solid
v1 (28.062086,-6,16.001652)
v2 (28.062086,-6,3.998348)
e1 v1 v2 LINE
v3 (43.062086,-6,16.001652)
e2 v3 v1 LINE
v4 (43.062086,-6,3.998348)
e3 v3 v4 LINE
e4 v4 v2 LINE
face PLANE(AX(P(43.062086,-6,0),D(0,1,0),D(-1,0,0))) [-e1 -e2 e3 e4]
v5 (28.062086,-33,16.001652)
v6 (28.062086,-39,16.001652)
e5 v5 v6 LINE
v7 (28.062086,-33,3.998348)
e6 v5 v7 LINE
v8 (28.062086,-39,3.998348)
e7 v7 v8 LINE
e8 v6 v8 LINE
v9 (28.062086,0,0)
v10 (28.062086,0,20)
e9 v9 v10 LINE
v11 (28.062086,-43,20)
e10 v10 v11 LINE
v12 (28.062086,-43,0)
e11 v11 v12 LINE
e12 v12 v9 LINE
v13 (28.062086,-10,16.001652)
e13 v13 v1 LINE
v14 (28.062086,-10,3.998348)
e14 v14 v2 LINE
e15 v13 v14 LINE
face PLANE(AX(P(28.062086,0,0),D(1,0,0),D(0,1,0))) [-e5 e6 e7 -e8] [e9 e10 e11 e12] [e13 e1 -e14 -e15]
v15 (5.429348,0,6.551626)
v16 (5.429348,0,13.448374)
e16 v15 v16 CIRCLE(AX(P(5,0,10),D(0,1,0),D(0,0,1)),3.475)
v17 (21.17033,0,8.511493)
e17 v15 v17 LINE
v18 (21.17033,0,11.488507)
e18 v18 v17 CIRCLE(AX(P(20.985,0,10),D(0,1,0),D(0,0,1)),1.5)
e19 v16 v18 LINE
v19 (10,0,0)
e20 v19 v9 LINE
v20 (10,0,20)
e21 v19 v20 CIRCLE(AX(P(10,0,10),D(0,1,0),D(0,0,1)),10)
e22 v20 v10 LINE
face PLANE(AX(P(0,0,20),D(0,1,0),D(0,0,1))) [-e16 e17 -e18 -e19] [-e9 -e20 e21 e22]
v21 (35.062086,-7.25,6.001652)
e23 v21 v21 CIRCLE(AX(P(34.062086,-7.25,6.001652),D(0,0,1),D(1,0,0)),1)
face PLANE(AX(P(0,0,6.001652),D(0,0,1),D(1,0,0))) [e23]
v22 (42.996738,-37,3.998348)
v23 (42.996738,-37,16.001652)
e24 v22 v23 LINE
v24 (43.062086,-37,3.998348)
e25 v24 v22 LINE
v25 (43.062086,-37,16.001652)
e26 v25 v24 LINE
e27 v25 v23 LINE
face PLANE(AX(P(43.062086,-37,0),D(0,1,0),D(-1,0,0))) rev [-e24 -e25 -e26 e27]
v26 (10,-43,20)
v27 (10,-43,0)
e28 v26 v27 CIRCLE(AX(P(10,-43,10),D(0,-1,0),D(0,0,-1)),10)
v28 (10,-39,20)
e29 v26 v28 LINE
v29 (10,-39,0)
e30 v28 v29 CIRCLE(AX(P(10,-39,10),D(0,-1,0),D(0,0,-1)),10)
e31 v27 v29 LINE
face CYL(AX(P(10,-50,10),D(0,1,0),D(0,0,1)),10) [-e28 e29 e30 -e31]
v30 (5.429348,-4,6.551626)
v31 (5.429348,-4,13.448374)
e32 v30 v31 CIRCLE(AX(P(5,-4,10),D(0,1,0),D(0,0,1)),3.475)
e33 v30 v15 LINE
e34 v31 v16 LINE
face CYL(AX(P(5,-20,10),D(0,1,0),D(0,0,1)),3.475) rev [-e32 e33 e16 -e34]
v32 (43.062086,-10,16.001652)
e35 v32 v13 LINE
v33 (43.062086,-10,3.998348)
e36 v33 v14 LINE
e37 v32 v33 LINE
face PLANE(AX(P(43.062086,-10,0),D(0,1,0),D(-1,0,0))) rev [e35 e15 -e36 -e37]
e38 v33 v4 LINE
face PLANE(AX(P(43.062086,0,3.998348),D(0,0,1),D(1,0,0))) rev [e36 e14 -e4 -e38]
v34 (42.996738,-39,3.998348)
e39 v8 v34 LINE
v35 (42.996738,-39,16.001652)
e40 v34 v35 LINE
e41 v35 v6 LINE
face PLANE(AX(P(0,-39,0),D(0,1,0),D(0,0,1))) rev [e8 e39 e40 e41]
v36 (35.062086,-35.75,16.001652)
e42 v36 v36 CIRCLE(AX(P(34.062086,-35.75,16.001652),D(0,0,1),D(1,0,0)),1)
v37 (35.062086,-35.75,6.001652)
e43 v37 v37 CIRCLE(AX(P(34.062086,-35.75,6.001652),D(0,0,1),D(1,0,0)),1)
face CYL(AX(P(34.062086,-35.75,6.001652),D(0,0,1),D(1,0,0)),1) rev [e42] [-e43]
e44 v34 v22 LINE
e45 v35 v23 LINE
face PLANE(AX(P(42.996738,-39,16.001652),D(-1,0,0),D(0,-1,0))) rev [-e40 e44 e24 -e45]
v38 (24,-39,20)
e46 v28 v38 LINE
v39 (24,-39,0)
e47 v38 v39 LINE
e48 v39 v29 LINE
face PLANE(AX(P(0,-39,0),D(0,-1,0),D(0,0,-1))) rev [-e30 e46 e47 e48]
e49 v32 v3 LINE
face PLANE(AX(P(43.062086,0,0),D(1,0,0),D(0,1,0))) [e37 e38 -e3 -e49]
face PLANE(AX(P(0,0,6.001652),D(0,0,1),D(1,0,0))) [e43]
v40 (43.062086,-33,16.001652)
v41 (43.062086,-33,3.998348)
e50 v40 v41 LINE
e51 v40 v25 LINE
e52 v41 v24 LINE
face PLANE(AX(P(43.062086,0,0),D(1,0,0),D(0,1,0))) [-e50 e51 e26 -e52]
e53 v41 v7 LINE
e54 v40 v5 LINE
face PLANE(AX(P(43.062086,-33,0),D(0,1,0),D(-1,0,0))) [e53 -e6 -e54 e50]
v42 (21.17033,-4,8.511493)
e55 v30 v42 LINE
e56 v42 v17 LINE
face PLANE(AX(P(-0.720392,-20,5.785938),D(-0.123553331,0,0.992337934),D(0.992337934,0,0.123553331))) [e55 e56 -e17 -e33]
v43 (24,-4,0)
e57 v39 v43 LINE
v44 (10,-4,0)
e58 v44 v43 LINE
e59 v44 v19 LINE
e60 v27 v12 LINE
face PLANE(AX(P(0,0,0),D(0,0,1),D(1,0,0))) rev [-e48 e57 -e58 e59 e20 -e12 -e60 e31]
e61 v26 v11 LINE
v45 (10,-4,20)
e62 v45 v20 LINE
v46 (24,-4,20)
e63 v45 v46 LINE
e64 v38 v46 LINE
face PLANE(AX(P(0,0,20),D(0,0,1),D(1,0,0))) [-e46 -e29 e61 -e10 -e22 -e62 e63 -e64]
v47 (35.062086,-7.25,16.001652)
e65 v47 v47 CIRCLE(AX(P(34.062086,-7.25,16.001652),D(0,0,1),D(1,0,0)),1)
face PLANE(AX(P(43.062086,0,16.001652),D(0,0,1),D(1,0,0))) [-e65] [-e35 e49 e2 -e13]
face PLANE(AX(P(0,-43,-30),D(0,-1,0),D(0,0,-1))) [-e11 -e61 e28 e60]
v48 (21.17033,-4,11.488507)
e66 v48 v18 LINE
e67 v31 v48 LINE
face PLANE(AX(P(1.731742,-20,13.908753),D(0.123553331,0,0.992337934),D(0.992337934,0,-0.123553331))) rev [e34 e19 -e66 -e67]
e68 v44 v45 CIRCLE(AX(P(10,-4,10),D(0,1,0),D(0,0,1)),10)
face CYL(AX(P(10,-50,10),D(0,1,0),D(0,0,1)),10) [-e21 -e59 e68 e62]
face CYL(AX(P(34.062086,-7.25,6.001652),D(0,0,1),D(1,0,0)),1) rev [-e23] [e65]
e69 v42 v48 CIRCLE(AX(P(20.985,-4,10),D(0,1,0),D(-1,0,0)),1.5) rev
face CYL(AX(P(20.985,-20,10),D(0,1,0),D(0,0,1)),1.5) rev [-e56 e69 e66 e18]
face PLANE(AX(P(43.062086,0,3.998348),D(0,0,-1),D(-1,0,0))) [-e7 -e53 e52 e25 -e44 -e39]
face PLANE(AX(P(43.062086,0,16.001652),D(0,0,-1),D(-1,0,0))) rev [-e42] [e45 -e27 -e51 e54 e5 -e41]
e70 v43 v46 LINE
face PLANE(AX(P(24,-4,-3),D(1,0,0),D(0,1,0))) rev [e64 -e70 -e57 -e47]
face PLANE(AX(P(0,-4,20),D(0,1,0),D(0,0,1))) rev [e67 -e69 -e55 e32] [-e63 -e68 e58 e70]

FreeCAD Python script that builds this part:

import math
import FreeCAD as App
import Part
import Sketcher
from FreeCAD import Vector


def add_polygon(sketch, points):
    """Adds a closed chain of lines whose ends are joined by coincident constraints."""
    first, n = sketch.GeometryCount, len(points)
    for a, b in zip(points, points[1:] + points[:1]):
        sketch.addGeometry(Part.LineSegment(App.Vector(*a, 0), App.Vector(*b, 0)), False)
    for i in range(n):
        sketch.addConstraint(Sketcher.Constraint("Coincident", first + i, 2, first + (i + 1) % n, 1))

doc = App.newDocument("Part")
params = doc.addObject("Spreadsheet::Sheet", "Params")
for row, (alias, value) in enumerate([
    ("sketch1_width", "20 mm"),
    ("sketch1_height", "46 mm"),
    ("sketch1_height2", "4 mm"),
    ("pad1_length", "20 mm"),
    ("sketch2_radius", "1.5 mm"),
    ("pocket1_length", "20 mm"),
    ("sketch3_width", "46 mm"),
    ("sketch3_height", "20 mm"),
    ("pad2_length", "3 mm"),
    ("sketch4_width", "4 mm"),
    ("sketch4_height", "38 mm"),
    ("pocket2_length", "23 mm"),
    ("sketch5_height", "20 mm"),
    ("pad3_length", "3 mm"),
    ("sketch6_height", "3 mm"),
    ("pocket3_length", "50 mm"),
    ("sketch7_radius", "10 mm"),
    ("pocket4_length", "50 mm"),
    ("sketch8_width", "4 mm"),
    ("pad4_length", "15 mm"),
    ("pad5_length", "2 mm"),
    ("sketch10_diameter", "2 mm"),
    ("pocket5_length", "10 mm"),
], start=1):
    params.set(f"A{row}", alias)
    params.set(f"B{row}", "=" + value)
    params.setAlias(f"B{row}", alias)

body = doc.addObject("PartDesign::Body", "Body")

# Sketch on XY plane
sketch1 = body.newObject("Sketcher::SketchObject", "Sketch")
sketch1.AttachmentSupport = (doc.getObject("XY_Plane"), [""])
sketch1.MapMode = "FlatFace"
add_polygon(sketch1, [(25.1, -46), (25.1, 0), (0, 0), (0, -4), (20, -4), (20, -42), (0, -42), (0, -46)])  # lines 0-7
sketch1.addConstraint([
    Sketcher.Constraint("Vertical", 0),
    Sketcher.Constraint("Horizontal", 1),
    Sketcher.Constraint("Vertical", 2),
    Sketcher.Constraint("Horizontal", 3),
    Sketcher.Constraint("Vertical", 4),
    Sketcher.Constraint("Horizontal", 5),
    Sketcher.Constraint("Vertical", 6),
    Sketcher.Constraint("Horizontal", 7),
    Sketcher.Constraint("Coincident", 1, 2, -1, 1),
    Sketcher.Constraint("PointOnObject", 5, 2, -2),
    Sketcher.Constraint("Equal", 2, 6),
    Sketcher.Constraint("DistanceX", 3, 1, 3, 2, 20.0),
    Sketcher.Constraint("DistanceY", 0, 1, 0, 2, 46.0),
    Sketcher.Constraint("DistanceY", 2, 2, 2, 1, 4.0),
    Sketcher.Constraint("DistanceX", 1, 2, 1, 1, 25.062086),
])
sketch1.setExpression("Constraints[19]", "Params.sketch1_width")
sketch1.setExpression("Constraints[20]", "Params.sketch1_height")
sketch1.setExpression("Constraints[21]", "Params.sketch1_height2")
pad1 = body.newObject("PartDesign::Pad", "Pad")
pad1.Profile = sketch1
pad1.setExpression("Length", "Params.pad1_length")

# Sketch on XZ plane
sketch2 = body.newObject("Sketcher::SketchObject", "Sketch001")
sketch2.AttachmentSupport = (doc.getObject("XZ_Plane"), [""])
sketch2.MapMode = "FlatFace"
sketch2.addGeometry([
    Part.LineSegment(Vector(5.4, 13.4, 0), Vector(21.2, 11.5, 0)),
    Part.ArcOfCircle(Part.Circle(Vector(21, 10, 0), Vector(0, 0, 1), 1.5), math.radians(-83), math.radians(83)),
    Part.LineSegment(Vector(21.2, 8.5, 0), Vector(5.4, 6.6, 0)),
    Part.ArcOfCircle(Part.Circle(Vector(5, 10, 0), Vector(0, 0, 1), 3.5), math.radians(83), math.radians(277)),
], False)
sketch2.addConstraint([
    Sketcher.Constraint("Tangent", 0, 2, 1, 2),
    Sketcher.Constraint("Tangent", 1, 1, 2, 1),
    Sketcher.Constraint("Tangent", 2, 2, 3, 2),
    Sketcher.Constraint("Tangent", 3, 1, 0, 1),
    Sketcher.Constraint("Horizontal", 1, 3, 3, 3),
    Sketcher.Constraint("Radius", 1, 1.5),
    Sketcher.Constraint("DistanceY", -1, 1, 1, 3, 10.0),
    Sketcher.Constraint("DistanceX", -1, 1, 3, 3, 5.0),
    Sketcher.Constraint("Radius", 3, 3.475),
    Sketcher.Constraint("DistanceX", -1, 1, 1, 3, 20.985),
])
sketch2.setExpression("Constraints[5]", "Params.sketch2_radius")
pocket1 = body.newObject("PartDesign::Pocket", "Pocket")
pocket1.Profile = sketch2
pocket1.setExpression("Length", "Params.pocket1_length")
pocket1.Reversed = True

# Sketch on YZ plane
sketch3 = body.newObject("Sketcher::SketchObject", "Sketch002")
sketch3.AttachmentSupport = (doc.getObject("YZ_Plane"), [""])
sketch3.MapMode = "FlatFace"
sketch3.AttachmentOffset = App.Placement(Vector(0, 0, 25.062086), App.Rotation())
add_polygon(sketch3, [(0, 20), (-46, 20), (-46, 0), (0, 0)])  # lines 0-3
sketch3.addConstraint([
    Sketcher.Constraint("Horizontal", 0),
    Sketcher.Constraint("Vertical", 1),
    Sketcher.Constraint("Horizontal", 2),
    Sketcher.Constraint("Vertical", 3),
    Sketcher.Constraint("Coincident", 2, 2, -1, 1),
    Sketcher.Constraint("DistanceX", 0, 2, 0, 1, 46.0),
    Sketcher.Constraint("DistanceY", 1, 2, 1, 1, 20.0),
])
sketch3.setExpression("Constraints[9]", "Params.sketch3_width")
sketch3.setExpression("Constraints[10]", "Params.sketch3_height")
pad2 = body.newObject("PartDesign::Pad", "Pad001")
pad2.Profile = sketch3
pad2.setExpression("Length", "Params.pad2_length")

# Sketch on XY plane
sketch4 = body.newObject("Sketcher::SketchObject", "Sketch003")
sketch4.AttachmentSupport = (doc.getObject("XY_Plane"), [""])
sketch4.MapMode = "FlatFace"
sketch4.AttachmentOffset = App.Placement(Vector(0, 0, 20), App.Rotation())
add_polygon(sketch4, [(20, -4), (20, -42), (24, -42), (24, -4)])  # lines 0-3
sketch4.addConstraint([
    Sketcher.Constraint("Vertical", 0),
    Sketcher.Constraint("Horizontal", 1),
    Sketcher.Constraint("Vertical", 2),
    Sketcher.Constraint("Horizontal", 3),
    Sketcher.Constraint("DistanceX", 1, 1, 1, 2, 4.0),
    Sketcher.Constraint("DistanceY", 0, 2, 0, 1, 38.0),
    Sketcher.Constraint("DistanceX", -1, 1, 0, 2, 20.0),
    Sketcher.Constraint("DistanceY", 0, 2, -1, 1, 42.0),
])
sketch4.setExpression("Constraints[8]", "Params.sketch4_width")
sketch4.setExpression("Constraints[9]", "Params.sketch4_height")
pocket2 = body.newObject("PartDesign::Pocket", "Pocket001")
pocket2.Profile = sketch4
pocket2.setExpression("Length", "Params.pocket2_length")

# Sketch on XZ plane
sketch5 = body.newObject("Sketcher::SketchObject", "Sketch004")
sketch5.AttachmentSupport = (doc.getObject("XZ_Plane"), [""])
sketch5.MapMode = "FlatFace"
sketch5.AttachmentOffset = App.Placement(Vector(0, 0, 42), App.Rotation())
add_polygon(sketch5, [(0, 0), (0, 20), (27, 20), (27, 0)])  # lines 0-3
sketch5.addConstraint([
    Sketcher.Constraint("Vertical", 0),
    Sketcher.Constraint("Horizontal", 1),
    Sketcher.Constraint("Vertical", 2),
    Sketcher.Constraint("Horizontal", 3),
    Sketcher.Constraint("Coincident", 3, 2, -1, 1),
    Sketcher.Constraint("DistanceY", 0, 1, 0, 2, 20.0),
    Sketcher.Constraint("DistanceX", 1, 1, 1, 2, 27.047352),
])
sketch5.setExpression("Constraints[9]", "Params.sketch5_height")
pad3 = body.newObject("PartDesign::Pad", "Pad002")
pad3.Profile = sketch5
pad3.setExpression("Length", "Params.pad3_length")
pad3.Reversed = True

# Sketch on XY plane
sketch6 = body.newObject("Sketcher::SketchObject", "Sketch005")
sketch6.AttachmentSupport = (doc.getObject("XY_Plane"), [""])
sketch6.MapMode = "FlatFace"
sketch6.AttachmentOffset = App.Placement(Vector(0, 0, 20), App.Rotation())
add_polygon(sketch6, [(0, -43), (0, -46), (28.1, -46), (28.1, -43)])  # lines 0-3
sketch6.addConstraint([
    Sketcher.Constraint("Vertical", 0),
    Sketcher.Constraint("Horizontal", 1),
    Sketcher.Constraint("Vertical", 2),
    Sketcher.Constraint("Horizontal", 3),
    Sketcher.Constraint("PointOnObject", 0, 2, -2),
    Sketcher.Constraint("DistanceY", 0, 2, 0, 1, 3.0),
    Sketcher.Constraint("DistanceY", 0, 2, -1, 1, 46.0),
    Sketcher.Constraint("DistanceX", 1, 1, 1, 2, 28.062086),
])
sketch6.setExpression("Constraints[9]", "Params.sketch6_height")
pocket3 = body.newObject("PartDesign::Pocket", "Pocket002")
pocket3.Profile = sketch6
pocket3.setExpression("Length", "Params.pocket3_length")

# Sketch on XZ plane
sketch7 = body.newObject("Sketcher::SketchObject", "Sketch006")
sketch7.AttachmentSupport = (doc.getObject("XZ_Plane"), [""])
sketch7.MapMode = "FlatFace"
sketch7.addGeometry([
    Part.LineSegment(Vector(10, 0, 0), Vector(0, 0, 0)),  # 0
    Part.LineSegment(Vector(0, 0, 0), Vector(0, 10, 0)),  # 1
    Part.ArcOfCircle(Part.Circle(Vector(10, 10, 0), Vector(0, 0, 1), 10), math.radians(180), math.radians(270)),  # 2
    Part.ArcOfCircle(Part.Circle(Vector(10, 10, 0), Vector(0, 0, 1), 10), math.radians(90), math.radians(180)),  # 3
    Part.LineSegment(Vector(0, 10, 0), Vector(0, 20, 0)),  # 4
    Part.LineSegment(Vector(0, 20, 0), Vector(10, 20, 0)),  # 5
], False)
sketch7.addConstraint([
    Sketcher.Constraint("Coincident", 0, 2, 1, 1),
    Sketcher.Constraint("Tangent", 1, 2, 2, 1),
    Sketcher.Constraint("Tangent", 2, 2, 0, 1),
    Sketcher.Constraint("Tangent", 3, 2, 4, 1),
    Sketcher.Constraint("Coincident", 4, 2, 5, 1),
    Sketcher.Constraint("Tangent", 5, 2, 3, 1),
    Sketcher.Constraint("Horizontal", 0),
    Sketcher.Constraint("Vertical", 1),
    Sketcher.Constraint("Vertical", 4),
    Sketcher.Constraint("Horizontal", 5),
    Sketcher.Constraint("Coincident", 0, 2, -1, 1),
    Sketcher.Constraint("Coincident", 3, 3, 2, 3),
    Sketcher.Constraint("Equal", 2, 3),
    Sketcher.Constraint("Radius", 2, 10.0),
])
sketch7.setExpression("Constraints[13]", "Params.sketch7_radius")
pocket4 = body.newObject("PartDesign::Pocket", "Pocket003")
pocket4.Profile = sketch7
pocket4.setExpression("Length", "Params.pocket4_length")
pocket4.Reversed = True

# Sketch on YZ plane
sketch8 = body.newObject("Sketcher::SketchObject", "Sketch007")
sketch8.AttachmentSupport = (doc.getObject("YZ_Plane"), [""])
sketch8.MapMode = "FlatFace"
sketch8.AttachmentOffset = App.Placement(Vector(0, 0, 28.062086), App.Rotation())
add_polygon(sketch8, [(-6, 16), (-10, 16), (-10, 4), (-6, 4)])  # lines 0-3
add_polygon(sketch8, [(-37, 4), (-33, 4), (-33, 16), (-37, 16)])  # lines 4-7
sketch8.addConstraint([
    Sketcher.Constraint("Horizontal", 0),
    Sketcher.Constraint("Vertical", 1),
    Sketcher.Constraint("Horizontal", 2),
    Sketcher.Constraint("Vertical", 3),
    Sketcher.Constraint("Horizontal", 4),
    Sketcher.Constraint("Vertical", 5),
    Sketcher.Constraint("Horizontal", 6),
    Sketcher.Constraint("Vertical", 7),
    Sketcher.Constraint("Horizontal", 2, 2, 4, 2),
    Sketcher.Constraint("Horizontal", 3, 2, 5, 2),
    Sketcher.Constraint("Equal", 2, 4),
    Sketcher.Constraint("DistanceX", 0, 2, 0, 1, 4.0),
    Sketcher.Constraint("DistanceX", 0, 2, -1, 1, 10.0),
    Sketcher.Constraint("DistanceX", 4, 2, -1, 1, 33.0),
    Sketcher.Constraint("DistanceY", 1, 2, 1, 1, 12.003303),
    Sketcher.Constraint("DistanceY", -1, 1, 0, 2, 16.001652),
])
sketch8.setExpression("Constraints[19]", "Params.sketch8_width")
pad4 = body.newObject("PartDesign::Pad", "Pad003")
pad4.Profile = sketch8
pad4.setExpression("Length", "Params.pad4_length")

# Sketch on XZ plane
sketch9 = body.newObject("Sketcher::SketchObject", "Sketch008")
sketch9.AttachmentSupport = (doc.getObject("XZ_Plane"), [""])
sketch9.MapMode = "FlatFace"
sketch9.AttachmentOffset = App.Placement(Vector(0, 0, 37), App.Rotation())
add_polygon(sketch9, [(28, 16), (28, 4), (43, 4), (43, 16)])  # lines 0-3
sketch9.addConstraint([
    Sketcher.Constraint("Vertical", 0),
    Sketcher.Constraint("Horizontal", 1),
    Sketcher.Constraint("Vertical", 2),
    Sketcher.Constraint("Horizontal", 3),
    Sketcher.Constraint("DistanceX", 1, 1, 1, 2, 14.934652),
    Sketcher.Constraint("DistanceY", 0, 2, 0, 1, 12.003303),
    Sketcher.Constraint("DistanceY", -1, 1, 0, 2, 3.998348),
    Sketcher.Constraint("DistanceX", -1, 1, 1, 2, 42.996738),
])
pad5 = body.newObject("PartDesign::Pad", "Pad004")
pad5.Profile = sketch9
pad5.setExpression("Length", "Params.pad5_length")

# Sketch on XY plane
sketch10 = body.newObject("Sketcher::SketchObject", "Sketch009")
sketch10.AttachmentSupport = (doc.getObject("XY_Plane"), [""])
sketch10.MapMode = "FlatFace"
sketch10.AttachmentOffset = App.Placement(Vector(0, 0, 16.001652), App.Rotation())
sketch10.addGeometry([
    Part.Circle(Vector(34.1, -7.2, 0), Vector(0, 0, 1), 1),
    Part.Circle(Vector(34.1, -35.8, 0), Vector(0, 0, 1), 1),
], False)
sketch10.addConstraint([
    Sketcher.Constraint("Equal", 0, 1),
    Sketcher.Constraint("Vertical", 0, 3, 1, 3),
    Sketcher.Constraint("Diameter", 0, 2.0),
    Sketcher.Constraint("DistanceY", 1, 3, 0, 3, 28.5),
    Sketcher.Constraint("DistanceY", 0, 3, -1, 1, 7.25),
    Sketcher.Constraint("DistanceX", -1, 1, 0, 3, 34.062086),
])
sketch10.setExpression("Constraints[2]", "Params.sketch10_diameter")
pocket5 = body.newObject("PartDesign::Pocket", "Pocket004")
pocket5.Profile = sketch10
pocket5.setExpression("Length", "Params.pocket5_length")

doc.recompute()
